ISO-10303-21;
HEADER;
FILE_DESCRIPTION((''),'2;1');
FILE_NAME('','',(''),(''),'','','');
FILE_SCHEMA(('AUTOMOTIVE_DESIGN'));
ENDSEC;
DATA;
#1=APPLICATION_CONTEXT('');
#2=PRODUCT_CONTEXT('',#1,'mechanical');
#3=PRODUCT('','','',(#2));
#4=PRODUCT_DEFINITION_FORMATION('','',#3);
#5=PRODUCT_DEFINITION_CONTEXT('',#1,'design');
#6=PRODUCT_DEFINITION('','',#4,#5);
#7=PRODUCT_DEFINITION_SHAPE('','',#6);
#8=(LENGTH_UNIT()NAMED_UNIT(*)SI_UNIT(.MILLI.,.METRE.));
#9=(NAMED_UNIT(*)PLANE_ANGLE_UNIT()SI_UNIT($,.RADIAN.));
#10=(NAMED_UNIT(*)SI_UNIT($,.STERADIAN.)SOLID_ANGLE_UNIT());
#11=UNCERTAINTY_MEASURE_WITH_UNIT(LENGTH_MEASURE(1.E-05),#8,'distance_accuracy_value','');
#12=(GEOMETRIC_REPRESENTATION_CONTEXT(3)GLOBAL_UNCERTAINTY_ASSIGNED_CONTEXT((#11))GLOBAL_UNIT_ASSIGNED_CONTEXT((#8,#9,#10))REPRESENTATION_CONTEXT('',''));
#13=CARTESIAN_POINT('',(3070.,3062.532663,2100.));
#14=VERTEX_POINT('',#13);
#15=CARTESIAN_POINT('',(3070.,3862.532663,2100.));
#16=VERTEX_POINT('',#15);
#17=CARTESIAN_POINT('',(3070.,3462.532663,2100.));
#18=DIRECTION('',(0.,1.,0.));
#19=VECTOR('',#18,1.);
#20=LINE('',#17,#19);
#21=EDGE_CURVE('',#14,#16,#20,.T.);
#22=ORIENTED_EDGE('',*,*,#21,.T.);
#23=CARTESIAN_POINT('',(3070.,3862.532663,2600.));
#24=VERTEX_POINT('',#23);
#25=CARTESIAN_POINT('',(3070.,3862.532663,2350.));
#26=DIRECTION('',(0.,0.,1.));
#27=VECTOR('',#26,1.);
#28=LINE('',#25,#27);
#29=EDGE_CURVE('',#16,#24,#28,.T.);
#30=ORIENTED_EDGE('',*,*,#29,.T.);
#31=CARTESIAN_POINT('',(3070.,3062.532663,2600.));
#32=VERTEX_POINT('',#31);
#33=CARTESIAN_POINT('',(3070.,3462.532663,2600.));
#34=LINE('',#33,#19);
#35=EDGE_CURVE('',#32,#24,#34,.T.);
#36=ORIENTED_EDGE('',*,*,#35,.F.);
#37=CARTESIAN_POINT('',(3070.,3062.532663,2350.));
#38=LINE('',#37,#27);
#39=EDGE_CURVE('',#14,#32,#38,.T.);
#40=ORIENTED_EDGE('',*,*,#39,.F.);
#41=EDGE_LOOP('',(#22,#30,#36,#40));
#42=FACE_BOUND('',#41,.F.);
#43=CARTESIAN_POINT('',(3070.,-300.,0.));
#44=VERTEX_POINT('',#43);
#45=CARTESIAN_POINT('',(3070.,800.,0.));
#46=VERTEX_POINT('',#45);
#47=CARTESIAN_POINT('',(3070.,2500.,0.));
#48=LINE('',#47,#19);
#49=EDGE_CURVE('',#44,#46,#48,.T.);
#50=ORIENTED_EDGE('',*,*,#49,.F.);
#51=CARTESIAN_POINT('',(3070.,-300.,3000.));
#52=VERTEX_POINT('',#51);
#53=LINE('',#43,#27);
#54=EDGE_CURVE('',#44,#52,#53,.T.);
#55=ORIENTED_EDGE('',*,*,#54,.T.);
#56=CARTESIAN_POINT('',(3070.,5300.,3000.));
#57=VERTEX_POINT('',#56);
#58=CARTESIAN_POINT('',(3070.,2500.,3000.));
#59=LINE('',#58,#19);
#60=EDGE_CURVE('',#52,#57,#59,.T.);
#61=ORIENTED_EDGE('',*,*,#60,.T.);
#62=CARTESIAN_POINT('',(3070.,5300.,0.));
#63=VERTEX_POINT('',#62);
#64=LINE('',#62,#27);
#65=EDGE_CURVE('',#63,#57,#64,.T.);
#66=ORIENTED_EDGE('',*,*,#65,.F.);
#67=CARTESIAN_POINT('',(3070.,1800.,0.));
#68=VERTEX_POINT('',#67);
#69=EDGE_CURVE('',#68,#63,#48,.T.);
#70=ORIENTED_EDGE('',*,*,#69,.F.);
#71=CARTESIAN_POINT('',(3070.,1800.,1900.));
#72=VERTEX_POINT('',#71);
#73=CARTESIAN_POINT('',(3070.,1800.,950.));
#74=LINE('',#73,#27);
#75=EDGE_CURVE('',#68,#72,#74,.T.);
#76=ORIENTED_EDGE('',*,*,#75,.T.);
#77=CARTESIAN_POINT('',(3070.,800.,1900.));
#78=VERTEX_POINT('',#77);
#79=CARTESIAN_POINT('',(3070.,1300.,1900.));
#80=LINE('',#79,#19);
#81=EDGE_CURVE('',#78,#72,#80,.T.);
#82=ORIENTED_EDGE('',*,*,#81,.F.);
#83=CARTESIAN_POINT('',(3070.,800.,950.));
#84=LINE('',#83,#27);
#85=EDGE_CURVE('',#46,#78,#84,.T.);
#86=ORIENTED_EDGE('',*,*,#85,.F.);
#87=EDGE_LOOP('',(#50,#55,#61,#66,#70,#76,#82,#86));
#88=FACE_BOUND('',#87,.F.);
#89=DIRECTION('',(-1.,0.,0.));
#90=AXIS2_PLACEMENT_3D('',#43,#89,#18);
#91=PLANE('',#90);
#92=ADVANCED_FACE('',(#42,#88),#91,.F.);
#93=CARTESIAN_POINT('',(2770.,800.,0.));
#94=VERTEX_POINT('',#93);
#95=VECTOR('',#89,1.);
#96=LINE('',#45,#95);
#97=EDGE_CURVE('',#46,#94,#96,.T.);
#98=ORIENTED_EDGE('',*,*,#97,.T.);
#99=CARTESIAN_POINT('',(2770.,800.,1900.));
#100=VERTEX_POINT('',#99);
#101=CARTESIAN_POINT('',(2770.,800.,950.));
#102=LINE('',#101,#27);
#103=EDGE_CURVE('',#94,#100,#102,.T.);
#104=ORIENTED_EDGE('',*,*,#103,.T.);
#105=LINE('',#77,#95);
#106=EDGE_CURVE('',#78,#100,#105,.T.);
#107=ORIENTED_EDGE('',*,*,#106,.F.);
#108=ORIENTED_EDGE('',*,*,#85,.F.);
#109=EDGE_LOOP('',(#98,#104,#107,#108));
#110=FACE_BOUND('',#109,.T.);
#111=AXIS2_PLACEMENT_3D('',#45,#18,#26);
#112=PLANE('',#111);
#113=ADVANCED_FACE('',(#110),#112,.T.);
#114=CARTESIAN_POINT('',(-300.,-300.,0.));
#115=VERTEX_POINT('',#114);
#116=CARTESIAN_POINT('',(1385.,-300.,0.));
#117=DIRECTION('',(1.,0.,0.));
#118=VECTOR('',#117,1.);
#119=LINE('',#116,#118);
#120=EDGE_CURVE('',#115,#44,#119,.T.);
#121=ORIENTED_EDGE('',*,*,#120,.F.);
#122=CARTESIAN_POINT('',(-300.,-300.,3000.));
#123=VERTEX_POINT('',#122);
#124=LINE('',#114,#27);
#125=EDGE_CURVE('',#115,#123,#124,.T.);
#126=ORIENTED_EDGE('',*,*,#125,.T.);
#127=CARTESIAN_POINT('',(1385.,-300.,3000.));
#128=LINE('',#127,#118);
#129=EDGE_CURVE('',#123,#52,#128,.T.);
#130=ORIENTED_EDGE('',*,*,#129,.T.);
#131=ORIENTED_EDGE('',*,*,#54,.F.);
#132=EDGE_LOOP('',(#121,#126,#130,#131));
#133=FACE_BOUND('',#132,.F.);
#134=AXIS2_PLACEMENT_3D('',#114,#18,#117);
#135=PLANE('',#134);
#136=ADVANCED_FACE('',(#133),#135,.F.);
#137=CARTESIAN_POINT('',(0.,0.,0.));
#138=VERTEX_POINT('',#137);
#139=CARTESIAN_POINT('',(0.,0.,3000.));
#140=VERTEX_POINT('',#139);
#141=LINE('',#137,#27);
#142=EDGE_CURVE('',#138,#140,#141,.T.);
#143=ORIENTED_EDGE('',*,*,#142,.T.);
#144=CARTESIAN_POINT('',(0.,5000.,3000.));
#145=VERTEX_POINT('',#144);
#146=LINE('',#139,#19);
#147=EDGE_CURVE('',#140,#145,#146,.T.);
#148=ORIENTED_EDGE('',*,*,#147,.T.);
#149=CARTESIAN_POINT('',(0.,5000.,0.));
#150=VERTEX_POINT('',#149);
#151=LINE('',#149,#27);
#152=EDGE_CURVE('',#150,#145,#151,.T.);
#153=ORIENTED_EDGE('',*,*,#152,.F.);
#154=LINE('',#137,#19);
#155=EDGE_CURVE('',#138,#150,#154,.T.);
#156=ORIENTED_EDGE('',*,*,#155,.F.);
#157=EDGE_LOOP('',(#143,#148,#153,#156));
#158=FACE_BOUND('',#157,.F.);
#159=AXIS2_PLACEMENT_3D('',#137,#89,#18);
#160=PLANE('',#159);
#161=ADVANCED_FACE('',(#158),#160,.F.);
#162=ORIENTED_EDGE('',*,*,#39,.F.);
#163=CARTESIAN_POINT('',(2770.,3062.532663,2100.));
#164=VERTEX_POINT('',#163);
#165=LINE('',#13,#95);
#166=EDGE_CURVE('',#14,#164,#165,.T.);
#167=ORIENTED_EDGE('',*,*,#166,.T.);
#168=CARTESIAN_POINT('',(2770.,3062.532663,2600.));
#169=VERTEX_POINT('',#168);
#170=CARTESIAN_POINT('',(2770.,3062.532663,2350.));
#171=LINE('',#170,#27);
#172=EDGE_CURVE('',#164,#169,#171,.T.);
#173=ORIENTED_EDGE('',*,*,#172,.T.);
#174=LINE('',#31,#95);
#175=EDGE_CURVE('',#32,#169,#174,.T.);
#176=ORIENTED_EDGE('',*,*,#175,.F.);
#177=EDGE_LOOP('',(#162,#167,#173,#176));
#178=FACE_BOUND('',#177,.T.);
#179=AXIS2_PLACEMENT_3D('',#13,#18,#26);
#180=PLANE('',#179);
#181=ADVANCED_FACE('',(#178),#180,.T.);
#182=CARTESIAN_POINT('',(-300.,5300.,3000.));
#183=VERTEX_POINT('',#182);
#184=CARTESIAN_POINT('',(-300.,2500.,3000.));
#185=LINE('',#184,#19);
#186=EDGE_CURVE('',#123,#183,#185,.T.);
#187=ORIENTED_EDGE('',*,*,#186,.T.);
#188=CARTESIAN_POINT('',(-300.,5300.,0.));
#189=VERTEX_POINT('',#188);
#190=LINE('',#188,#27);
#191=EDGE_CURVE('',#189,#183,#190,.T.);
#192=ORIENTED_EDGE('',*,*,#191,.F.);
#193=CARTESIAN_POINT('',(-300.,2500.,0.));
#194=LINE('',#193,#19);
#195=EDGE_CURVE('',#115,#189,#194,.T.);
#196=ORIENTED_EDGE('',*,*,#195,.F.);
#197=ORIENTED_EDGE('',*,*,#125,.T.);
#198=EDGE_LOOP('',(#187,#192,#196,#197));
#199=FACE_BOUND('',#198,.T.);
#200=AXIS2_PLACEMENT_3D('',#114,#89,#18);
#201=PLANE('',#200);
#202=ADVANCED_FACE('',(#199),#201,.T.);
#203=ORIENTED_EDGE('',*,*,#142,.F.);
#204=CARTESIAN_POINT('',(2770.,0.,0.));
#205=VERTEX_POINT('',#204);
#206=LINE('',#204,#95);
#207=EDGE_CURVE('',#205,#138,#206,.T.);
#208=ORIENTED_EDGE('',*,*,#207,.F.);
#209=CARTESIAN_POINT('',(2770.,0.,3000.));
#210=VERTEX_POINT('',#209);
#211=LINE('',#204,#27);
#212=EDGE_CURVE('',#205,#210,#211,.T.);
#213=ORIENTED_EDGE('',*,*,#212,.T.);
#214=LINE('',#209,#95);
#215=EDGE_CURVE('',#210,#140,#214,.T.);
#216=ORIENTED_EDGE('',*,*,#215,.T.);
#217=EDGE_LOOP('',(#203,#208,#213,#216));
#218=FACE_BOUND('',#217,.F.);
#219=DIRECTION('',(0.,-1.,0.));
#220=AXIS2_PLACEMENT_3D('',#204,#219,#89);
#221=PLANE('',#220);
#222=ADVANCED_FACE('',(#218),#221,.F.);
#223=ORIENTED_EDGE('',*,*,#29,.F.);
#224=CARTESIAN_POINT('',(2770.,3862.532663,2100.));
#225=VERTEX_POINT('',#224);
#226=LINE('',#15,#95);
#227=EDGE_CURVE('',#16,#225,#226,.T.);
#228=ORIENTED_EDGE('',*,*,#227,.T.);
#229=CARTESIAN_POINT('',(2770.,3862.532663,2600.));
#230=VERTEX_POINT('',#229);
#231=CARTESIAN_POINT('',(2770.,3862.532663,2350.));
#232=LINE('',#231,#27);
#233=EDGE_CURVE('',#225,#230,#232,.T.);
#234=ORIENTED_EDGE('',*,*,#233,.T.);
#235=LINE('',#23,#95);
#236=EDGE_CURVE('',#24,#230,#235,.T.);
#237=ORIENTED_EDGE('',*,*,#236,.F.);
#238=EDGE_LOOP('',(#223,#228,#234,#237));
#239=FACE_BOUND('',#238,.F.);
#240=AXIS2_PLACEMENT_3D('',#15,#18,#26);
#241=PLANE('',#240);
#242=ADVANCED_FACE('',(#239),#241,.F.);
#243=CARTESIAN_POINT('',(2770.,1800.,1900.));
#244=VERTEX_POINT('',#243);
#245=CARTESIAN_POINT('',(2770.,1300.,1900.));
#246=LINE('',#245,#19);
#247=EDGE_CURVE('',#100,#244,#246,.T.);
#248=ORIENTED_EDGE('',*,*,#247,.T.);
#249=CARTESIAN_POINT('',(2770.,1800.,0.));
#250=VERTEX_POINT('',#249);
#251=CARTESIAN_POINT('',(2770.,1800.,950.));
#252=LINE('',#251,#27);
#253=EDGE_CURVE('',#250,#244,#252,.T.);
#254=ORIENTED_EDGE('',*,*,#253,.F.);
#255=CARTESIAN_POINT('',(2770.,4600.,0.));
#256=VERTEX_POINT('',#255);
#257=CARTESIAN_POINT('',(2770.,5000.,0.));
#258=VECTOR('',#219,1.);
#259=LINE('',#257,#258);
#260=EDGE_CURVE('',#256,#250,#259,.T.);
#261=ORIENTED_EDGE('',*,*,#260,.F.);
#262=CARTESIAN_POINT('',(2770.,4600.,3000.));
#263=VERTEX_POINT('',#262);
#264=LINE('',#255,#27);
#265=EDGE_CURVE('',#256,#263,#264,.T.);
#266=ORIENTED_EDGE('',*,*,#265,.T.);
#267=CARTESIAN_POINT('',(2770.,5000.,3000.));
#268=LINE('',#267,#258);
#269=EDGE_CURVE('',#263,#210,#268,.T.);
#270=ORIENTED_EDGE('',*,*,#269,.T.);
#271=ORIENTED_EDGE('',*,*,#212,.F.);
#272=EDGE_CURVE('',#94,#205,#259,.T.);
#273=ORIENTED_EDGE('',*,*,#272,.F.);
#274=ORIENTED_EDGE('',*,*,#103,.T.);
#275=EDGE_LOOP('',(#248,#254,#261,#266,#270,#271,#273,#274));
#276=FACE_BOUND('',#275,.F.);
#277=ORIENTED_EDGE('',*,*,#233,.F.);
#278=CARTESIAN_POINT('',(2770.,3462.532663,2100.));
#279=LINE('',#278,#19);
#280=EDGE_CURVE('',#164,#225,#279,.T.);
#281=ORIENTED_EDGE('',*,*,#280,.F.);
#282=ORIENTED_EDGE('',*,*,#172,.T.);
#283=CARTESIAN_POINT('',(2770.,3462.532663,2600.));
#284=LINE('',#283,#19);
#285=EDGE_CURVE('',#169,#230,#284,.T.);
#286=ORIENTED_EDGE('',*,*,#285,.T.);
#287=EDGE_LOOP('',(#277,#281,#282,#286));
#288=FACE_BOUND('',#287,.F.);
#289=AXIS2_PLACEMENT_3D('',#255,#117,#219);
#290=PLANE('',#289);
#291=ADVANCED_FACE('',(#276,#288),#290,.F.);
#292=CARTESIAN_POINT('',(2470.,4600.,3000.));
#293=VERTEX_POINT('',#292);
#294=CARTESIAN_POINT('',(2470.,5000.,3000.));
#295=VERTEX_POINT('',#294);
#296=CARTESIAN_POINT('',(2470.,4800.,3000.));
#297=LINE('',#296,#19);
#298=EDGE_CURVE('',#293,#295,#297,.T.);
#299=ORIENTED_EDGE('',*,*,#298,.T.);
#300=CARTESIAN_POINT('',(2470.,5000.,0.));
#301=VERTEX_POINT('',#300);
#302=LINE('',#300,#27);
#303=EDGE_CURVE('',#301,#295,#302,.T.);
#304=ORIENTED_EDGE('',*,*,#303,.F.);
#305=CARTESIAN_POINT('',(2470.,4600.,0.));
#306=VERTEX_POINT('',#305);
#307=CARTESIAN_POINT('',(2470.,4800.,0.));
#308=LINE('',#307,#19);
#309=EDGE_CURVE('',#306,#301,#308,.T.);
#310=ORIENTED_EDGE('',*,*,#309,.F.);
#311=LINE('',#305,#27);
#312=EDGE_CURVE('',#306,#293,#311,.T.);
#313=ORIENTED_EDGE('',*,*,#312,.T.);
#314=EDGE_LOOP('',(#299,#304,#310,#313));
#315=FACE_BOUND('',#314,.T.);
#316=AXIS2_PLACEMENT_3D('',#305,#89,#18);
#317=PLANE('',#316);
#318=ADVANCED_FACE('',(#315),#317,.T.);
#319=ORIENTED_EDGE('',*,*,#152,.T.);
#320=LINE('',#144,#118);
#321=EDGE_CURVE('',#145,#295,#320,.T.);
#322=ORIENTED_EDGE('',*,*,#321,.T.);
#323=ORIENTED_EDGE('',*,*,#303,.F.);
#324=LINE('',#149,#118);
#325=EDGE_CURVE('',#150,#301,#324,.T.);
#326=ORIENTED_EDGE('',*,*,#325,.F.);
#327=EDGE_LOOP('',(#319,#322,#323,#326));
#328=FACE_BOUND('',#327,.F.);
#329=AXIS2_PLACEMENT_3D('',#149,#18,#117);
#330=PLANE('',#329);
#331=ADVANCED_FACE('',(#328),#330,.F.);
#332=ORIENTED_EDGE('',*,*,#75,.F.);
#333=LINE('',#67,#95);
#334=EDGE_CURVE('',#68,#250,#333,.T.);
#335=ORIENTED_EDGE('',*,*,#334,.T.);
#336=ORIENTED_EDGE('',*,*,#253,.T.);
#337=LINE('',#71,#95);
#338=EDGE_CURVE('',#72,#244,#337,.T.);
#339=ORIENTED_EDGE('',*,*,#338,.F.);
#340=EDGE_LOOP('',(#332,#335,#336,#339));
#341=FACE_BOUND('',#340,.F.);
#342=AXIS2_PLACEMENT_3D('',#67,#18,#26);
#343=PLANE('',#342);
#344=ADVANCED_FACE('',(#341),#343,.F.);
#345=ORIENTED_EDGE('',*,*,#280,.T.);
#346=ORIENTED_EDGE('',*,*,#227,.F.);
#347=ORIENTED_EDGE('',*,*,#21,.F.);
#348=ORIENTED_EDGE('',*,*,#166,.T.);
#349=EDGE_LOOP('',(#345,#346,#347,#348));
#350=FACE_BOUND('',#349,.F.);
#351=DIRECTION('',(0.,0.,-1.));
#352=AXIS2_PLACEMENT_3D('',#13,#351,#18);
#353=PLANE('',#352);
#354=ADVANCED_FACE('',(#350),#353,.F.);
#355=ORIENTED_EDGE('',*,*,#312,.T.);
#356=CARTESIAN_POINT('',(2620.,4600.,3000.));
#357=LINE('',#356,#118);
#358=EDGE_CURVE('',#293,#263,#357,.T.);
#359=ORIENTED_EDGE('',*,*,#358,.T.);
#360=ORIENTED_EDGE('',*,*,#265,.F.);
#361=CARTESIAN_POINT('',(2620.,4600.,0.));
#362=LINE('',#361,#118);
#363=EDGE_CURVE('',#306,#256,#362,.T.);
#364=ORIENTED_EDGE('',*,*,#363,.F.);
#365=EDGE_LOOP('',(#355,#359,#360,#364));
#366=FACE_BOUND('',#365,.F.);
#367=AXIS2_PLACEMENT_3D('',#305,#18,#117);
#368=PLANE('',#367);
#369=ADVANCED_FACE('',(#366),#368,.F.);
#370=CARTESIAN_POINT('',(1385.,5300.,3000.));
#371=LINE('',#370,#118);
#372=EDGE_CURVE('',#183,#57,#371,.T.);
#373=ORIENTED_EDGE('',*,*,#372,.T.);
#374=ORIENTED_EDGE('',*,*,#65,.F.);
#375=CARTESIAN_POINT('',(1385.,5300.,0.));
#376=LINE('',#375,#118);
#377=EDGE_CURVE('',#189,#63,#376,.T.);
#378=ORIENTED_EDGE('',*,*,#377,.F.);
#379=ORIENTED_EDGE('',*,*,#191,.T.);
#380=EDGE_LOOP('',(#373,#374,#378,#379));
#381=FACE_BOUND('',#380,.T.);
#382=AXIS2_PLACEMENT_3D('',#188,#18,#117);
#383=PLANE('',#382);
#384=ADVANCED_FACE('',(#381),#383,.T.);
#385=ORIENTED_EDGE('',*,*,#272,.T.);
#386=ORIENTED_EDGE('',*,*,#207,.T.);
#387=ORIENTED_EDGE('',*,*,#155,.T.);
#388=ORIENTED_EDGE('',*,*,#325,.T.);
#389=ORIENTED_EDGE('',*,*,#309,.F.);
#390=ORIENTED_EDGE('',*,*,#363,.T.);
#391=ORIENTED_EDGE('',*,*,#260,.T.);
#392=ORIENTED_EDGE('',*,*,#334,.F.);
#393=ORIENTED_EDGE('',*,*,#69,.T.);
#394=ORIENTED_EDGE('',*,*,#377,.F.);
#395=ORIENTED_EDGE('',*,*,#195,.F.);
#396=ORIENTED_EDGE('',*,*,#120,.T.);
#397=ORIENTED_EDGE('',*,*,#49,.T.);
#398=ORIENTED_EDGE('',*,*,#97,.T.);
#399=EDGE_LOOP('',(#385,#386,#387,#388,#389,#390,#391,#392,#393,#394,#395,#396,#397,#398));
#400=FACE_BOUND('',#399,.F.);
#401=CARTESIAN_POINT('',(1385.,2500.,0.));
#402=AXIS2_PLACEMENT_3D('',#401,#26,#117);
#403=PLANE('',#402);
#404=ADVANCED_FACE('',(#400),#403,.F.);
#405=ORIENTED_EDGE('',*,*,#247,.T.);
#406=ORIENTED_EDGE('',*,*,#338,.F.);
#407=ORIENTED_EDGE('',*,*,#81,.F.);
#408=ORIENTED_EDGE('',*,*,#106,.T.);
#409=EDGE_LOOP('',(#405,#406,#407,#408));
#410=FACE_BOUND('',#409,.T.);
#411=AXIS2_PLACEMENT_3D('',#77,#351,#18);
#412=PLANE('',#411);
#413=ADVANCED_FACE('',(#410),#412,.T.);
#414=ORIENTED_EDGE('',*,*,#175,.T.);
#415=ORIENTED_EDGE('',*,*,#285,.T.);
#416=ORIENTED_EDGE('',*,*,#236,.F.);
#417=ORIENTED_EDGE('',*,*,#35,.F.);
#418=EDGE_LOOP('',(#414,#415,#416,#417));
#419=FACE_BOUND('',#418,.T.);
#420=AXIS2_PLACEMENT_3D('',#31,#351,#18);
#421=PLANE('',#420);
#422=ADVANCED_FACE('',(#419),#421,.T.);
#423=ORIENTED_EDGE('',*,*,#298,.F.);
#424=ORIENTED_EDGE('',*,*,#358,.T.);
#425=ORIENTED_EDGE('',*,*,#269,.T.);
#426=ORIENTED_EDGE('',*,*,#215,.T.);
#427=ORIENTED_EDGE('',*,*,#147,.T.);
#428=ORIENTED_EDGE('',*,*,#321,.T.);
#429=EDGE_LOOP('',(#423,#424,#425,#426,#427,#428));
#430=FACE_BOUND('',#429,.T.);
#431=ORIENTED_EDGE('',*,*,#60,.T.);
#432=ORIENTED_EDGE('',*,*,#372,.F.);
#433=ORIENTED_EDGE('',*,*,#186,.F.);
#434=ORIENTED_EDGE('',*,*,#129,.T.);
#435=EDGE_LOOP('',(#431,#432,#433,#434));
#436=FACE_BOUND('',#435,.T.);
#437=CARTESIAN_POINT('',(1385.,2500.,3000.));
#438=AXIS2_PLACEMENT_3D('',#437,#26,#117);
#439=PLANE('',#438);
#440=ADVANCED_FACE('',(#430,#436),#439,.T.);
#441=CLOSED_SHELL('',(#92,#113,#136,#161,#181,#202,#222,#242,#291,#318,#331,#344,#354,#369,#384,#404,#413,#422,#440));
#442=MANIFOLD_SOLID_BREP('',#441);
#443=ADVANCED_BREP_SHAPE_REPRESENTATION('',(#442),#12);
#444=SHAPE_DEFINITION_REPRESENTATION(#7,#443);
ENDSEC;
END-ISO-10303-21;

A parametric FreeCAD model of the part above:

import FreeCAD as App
import Part
import Sketcher

V = App.Vector

doc = App.newDocument("Part")
params = doc.addObject("Spreadsheet::Sheet", "Params")
for row, (alias, value) in enumerate([
    ("sketch1_width", "3370 mm"),
    ("sketch1_width2", "2770 mm"),
    ("sketch1_width3", "2470 mm"),
    ("sketch1_height", "5600 mm"),
    ("sketch1_height2", "4600 mm"),
    ("pad1_length", "3000 mm"),
    ("sketch2_width", "1000 mm"),
    ("sketch2_width2", "800 mm"),
    ("sketch2_height", "1900 mm"),
    ("sketch2_height2", "500 mm"),
    ("pocket1_length", "300 mm"),
], start=1):
    params.set(f"A{row}", alias)
    params.set(f"B{row}", "=" + value)
    params.setAlias(f"B{row}", alias)

body = doc.addObject("PartDesign::Body", "Body")

# Sketch on XY plane
sketch1 = doc.addObject("Sketcher::SketchObject", "Sketch")
body.addObject(sketch1)
sketch1.AttachmentSupport = (doc.XY_Plane, [""])
sketch1.MapMode = "FlatFace"
sketch1.addGeometry([
    Part.LineSegment(V(-300, 5300, 0), V(-300, -300, 0)),  # 0
    Part.LineSegment(V(-300, -300, 0), V(3070, -300, 0)),  # 1
    Part.LineSegment(V(3070, -300, 0), V(3070, 5300, 0)),  # 2
    Part.LineSegment(V(3070, 5300, 0), V(-300, 5300, 0)),  # 3
    Part.LineSegment(V(2770, 4600, 0), V(2770, 0, 0)),  # 4
    Part.LineSegment(V(2770, 0, 0), V(0, 0, 0)),  # 5
    Part.LineSegment(V(0, 0, 0), V(0, 5000, 0)),  # 6
    Part.LineSegment(V(0, 5000, 0), V(2470, 5000, 0)),  # 7
    Part.LineSegment(V(2470, 5000, 0), V(2470, 4600, 0)),  # 8
    Part.LineSegment(V(2470, 4600, 0), V(2770, 4600, 0)),  # 9
], False)
sketch1.addConstraint([
    Sketcher.Constraint("Coincident", 0, 2, 1, 1),
    Sketcher.Constraint("Coincident", 1, 2, 2, 1),
    Sketcher.Constraint("Coincident", 2, 2, 3, 1),
    Sketcher.Constraint("Coincident", 3, 2, 0, 1),
    Sketcher.Constraint("Coincident", 4, 2, 5, 1),
    Sketcher.Constraint("Coincident", 5, 2, 6, 1),
    Sketcher.Constraint("Coincident", 6, 2, 7, 1),
    Sketcher.Constraint("Coincident", 7, 2, 8, 1),
    Sketcher.Constraint("Coincident", 8, 2, 9, 1),
    Sketcher.Constraint("Coincident", 9, 2, 4, 1),
    Sketcher.Constraint("Vertical", 0),
    Sketcher.Constraint("Horizontal", 1),
    Sketcher.Constraint("Vertical", 2),
    Sketcher.Constraint("Horizontal", 3),
    Sketcher.Constraint("Vertical", 4),
    Sketcher.Constraint("Horizontal", 5),
    Sketcher.Constraint("Vertical", 6),
    Sketcher.Constraint("Horizontal", 7),
    Sketcher.Constraint("Vertical", 8),
    Sketcher.Constraint("Horizontal", 9),
    Sketcher.Constraint("Coincident", 5, 2, -1, 1),
    Sketcher.Constraint("DistanceX", 1, 1, 1, 2, 3370.0),
    Sketcher.Constraint("DistanceX", 5, 2, 5, 1, 2770.0),
    Sketcher.Constraint("DistanceX", 7, 1, 7, 2, 2470.0),
    Sketcher.Constraint("DistanceY", 0, 2, 0, 1, 5600.0),
    Sketcher.Constraint("DistanceY", 4, 2, 4, 1, 4600.0),
    Sketcher.Constraint("DistanceY", 6, 1, 6, 2, 5000.0),
    Sketcher.Constraint("DistanceX", 0, 2, -1, 1, 300.0),
    Sketcher.Constraint("DistanceY", 0, 2, -1, 1, 300.0),
])
sketch1.setExpression("Constraints[21]", "Params.sketch1_width")
sketch1.setExpression("Constraints[22]", "Params.sketch1_width2")
sketch1.setExpression("Constraints[23]", "Params.sketch1_width3")
sketch1.setExpression("Constraints[24]", "Params.sketch1_height")
sketch1.setExpression("Constraints[25]", "Params.sketch1_height2")
pad1 = doc.addObject("PartDesign::Pad", "Pad")
body.addObject(pad1)
pad1.Profile = sketch1
pad1.setExpression("Length", "Params.pad1_length")

# Sketch on YZ plane
sketch2 = doc.addObject("Sketcher::SketchObject", "Sketch001")
body.addObject(sketch2)
sketch2.AttachmentSupport = (doc.YZ_Plane, [""])
sketch2.MapMode = "FlatFace"
sketch2.AttachmentOffset = App.Placement(V(0, 0, 3070), App.Rotation())
sketch2.addGeometry([
    Part.LineSegment(V(800, 1900, 0), V(800, 0, 0)),  # 0
    Part.LineSegment(V(800, 0, 0), V(1800, 0, 0)),  # 1
    Part.LineSegment(V(1800, 0, 0), V(1800, 1900, 0)),  # 2
    Part.LineSegment(V(1800, 1900, 0), V(800, 1900, 0)),  # 3
    Part.LineSegment(V(3063, 2600, 0), V(3063, 2100, 0)),  # 4
    Part.LineSegment(V(3063, 2100, 0), V(3863, 2100, 0)),  # 5
    Part.LineSegment(V(3863, 2100, 0), V(3863, 2600, 0)),  # 6
    Part.LineSegment(V(3863, 2600, 0), V(3063, 2600, 0)),  # 7
], False)
sketch2.addConstraint([
    Sketcher.Constraint("Coincident", 0, 2, 1, 1),
    Sketcher.Constraint("Coincident", 1, 2, 2, 1),
    Sketcher.Constraint("Coincident", 2, 2, 3, 1),
    Sketcher.Constraint("Coincident", 3, 2, 0, 1),
    Sketcher.Constraint("Coincident", 4, 2, 5, 1),
    Sketcher.Constraint("Coincident", 5, 2, 6, 1),
    Sketcher.Constraint("Coincident", 6, 2, 7, 1),
    Sketcher.Constraint("Coincident", 7, 2, 4, 1),
    Sketcher.Constraint("Vertical", 0),
    Sketcher.Constraint("Horizontal", 1),
    Sketcher.Constraint("Vertical", 2),
    Sketcher.Constraint("Horizontal", 3),
    Sketcher.Constraint("Vertical", 4),
    Sketcher.Constraint("Horizontal", 5),
    Sketcher.Constraint("Vertical", 6),
    Sketcher.Constraint("Horizontal", 7),
    Sketcher.Constraint("PointOnObject", 0, 2, -1),
    Sketcher.Constraint("DistanceX", 1, 1, 1, 2, 1000.0),
    Sketcher.Constraint("DistanceX", 5, 1, 5, 2, 800.0),
    Sketcher.Constraint("DistanceY", 0, 2, 0, 1, 1900.0),
    Sketcher.Constraint("DistanceY", 4, 2, 4, 1, 500.0),
    Sketcher.Constraint("DistanceX", -1, 1, 0, 2, 800.0),
    Sketcher.Constraint("DistanceY", -1, 1, 4, 2, 2100.0),
    Sketcher.Constraint("DistanceX", -1, 1, 4, 2, 3062.532663),
])
sketch2.setExpression("Constraints[17]", "Params.sketch2_width")
sketch2.setExpression("Constraints[18]", "Params.sketch2_width2")
sketch2.setExpression("Constraints[19]", "Params.sketch2_height")
sketch2.setExpression("Constraints[20]", "Params.sketch2_height2")
pocket1 = doc.addObject("PartDesign::Pocket", "Pocket")
body.addObject(pocket1)
pocket1.Profile = sketch2
pocket1.setExpression("Length", "Params.pocket1_length")

doc.recompute()
